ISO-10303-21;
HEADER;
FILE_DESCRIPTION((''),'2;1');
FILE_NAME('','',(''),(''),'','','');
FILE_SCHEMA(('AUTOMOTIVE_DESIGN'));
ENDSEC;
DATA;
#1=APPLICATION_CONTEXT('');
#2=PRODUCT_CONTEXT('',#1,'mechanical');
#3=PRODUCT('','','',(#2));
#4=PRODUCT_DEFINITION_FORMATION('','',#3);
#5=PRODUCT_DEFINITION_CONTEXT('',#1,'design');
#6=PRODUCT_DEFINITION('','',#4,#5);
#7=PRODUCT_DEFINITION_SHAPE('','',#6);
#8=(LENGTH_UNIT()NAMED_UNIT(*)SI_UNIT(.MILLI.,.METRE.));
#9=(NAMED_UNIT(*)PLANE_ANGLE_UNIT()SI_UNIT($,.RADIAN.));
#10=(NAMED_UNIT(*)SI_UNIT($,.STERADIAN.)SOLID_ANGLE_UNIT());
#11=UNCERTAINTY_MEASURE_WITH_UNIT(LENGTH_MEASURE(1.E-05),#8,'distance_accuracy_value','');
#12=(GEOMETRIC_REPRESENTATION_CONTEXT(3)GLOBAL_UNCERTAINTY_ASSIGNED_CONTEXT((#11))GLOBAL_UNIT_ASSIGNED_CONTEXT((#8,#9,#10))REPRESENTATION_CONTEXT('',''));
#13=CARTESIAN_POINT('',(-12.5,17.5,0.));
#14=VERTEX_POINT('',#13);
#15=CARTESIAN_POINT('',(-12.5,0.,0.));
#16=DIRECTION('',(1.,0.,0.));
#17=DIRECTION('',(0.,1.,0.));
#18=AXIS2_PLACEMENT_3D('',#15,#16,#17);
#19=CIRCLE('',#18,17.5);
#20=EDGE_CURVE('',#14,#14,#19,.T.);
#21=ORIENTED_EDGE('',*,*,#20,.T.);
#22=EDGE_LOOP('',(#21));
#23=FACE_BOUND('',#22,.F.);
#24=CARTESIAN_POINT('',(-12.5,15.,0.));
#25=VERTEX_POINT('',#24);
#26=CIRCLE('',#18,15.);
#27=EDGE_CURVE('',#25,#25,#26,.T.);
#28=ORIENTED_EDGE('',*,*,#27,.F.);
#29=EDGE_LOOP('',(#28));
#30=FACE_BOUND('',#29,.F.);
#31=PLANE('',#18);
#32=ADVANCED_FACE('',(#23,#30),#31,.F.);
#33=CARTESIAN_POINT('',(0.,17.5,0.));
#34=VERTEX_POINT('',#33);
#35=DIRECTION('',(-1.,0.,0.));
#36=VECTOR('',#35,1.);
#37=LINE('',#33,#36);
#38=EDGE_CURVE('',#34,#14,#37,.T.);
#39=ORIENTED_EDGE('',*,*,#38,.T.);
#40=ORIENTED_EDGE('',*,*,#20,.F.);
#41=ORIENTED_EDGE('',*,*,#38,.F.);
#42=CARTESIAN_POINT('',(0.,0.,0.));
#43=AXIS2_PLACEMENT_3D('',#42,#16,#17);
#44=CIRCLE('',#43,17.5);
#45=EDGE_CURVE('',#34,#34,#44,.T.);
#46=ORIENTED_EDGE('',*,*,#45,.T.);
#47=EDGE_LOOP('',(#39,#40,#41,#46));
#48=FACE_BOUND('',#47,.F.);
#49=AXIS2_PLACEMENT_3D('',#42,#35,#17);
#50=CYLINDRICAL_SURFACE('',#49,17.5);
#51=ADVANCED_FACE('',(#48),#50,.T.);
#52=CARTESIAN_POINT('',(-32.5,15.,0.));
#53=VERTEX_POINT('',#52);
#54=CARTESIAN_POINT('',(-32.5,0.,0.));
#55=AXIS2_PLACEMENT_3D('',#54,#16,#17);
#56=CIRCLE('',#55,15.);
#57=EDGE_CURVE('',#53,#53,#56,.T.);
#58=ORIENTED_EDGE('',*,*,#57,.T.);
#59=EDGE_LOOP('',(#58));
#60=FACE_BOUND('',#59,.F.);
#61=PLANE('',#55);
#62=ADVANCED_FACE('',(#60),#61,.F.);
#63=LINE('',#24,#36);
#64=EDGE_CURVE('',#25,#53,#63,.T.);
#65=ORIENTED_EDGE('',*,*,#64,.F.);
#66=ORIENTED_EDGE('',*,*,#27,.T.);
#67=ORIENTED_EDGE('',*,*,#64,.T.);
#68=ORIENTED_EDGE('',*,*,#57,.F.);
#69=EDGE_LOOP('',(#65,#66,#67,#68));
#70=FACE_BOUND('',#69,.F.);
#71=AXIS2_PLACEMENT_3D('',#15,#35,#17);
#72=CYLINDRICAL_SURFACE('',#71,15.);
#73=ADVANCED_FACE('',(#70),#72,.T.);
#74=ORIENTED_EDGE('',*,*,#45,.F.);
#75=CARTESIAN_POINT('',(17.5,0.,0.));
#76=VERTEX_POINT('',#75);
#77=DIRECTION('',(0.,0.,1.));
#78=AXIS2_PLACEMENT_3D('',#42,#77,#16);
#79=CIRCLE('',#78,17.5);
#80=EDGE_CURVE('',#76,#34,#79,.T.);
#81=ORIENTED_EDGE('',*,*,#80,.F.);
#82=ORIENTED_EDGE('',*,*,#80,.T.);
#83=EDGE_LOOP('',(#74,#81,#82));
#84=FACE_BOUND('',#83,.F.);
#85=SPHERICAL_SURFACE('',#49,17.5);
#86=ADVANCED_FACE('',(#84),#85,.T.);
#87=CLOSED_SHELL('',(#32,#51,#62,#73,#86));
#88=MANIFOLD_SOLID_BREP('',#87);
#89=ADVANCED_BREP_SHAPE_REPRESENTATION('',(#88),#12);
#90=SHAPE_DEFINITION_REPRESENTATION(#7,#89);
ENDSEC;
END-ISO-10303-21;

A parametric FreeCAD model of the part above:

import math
import FreeCAD as App
import Part
import Sketcher
from FreeCAD import Vector

doc = App.newDocument("Part")
body = doc.addObject("PartDesign::Body", "Body")

# Sketch on XY plane
sketch1 = doc.addObject("Sketcher::SketchObject", "Sketch")
body.addObject(sketch1)
sketch1.AttachmentSupport = (doc.XY_Plane, [""])
sketch1.MapMode = "FlatFace"
sketch1.addGeometry(Part.LineSegment(Vector(-32.5, 15, 0), Vector(-32.5, 0, 0)), False)
sketch1.addGeometry(Part.LineSegment(Vector(-32.5, 0, 0), Vector(17.5, 0, 0)), False)
sketch1.addGeometry(Part.ArcOfCircle(Part.Circle(Vector(0, 0, 0), Vector(0, 0, 1), 17.5), math.radians(0), math.radians(90)), False)
sketch1.addGeometry(Part.LineSegment(Vector(0, 17.5, 0), Vector(-12.5, 17.5, 0)), False)
sketch1.addGeometry(Part.LineSegment(Vector(-12.5, 17.5, 0), Vector(-12.5, 15, 0)), False)
sketch1.addGeometry(Part.LineSegment(Vector(-12.5, 15, 0), Vector(-32.5, 15, 0)), False)
sketch1.addConstraint(Sketcher.Constraint("Coincident", 0, 2, 1, 1))
sketch1.addConstraint(Sketcher.Constraint("Coincident", 1, 2, 2, 1))
sketch1.addConstraint(Sketcher.Constraint("Tangent", 2, 2, 3, 1))
sketch1.addConstraint(Sketcher.Constraint("Coincident", 3, 2, 4, 1))
sketch1.addConstraint(Sketcher.Constraint("Coincident", 4, 2, 5, 1))
sketch1.addConstraint(Sketcher.Constraint("Coincident", 5, 2, 0, 1))
sketch1.addConstraint(Sketcher.Constraint("Vertical", 0))
sketch1.addConstraint(Sketcher.Constraint("Horizontal", 1))
sketch1.addConstraint(Sketcher.Constraint("Horizontal", 3))
sketch1.addConstraint(Sketcher.Constraint("Vertical", 4))
sketch1.addConstraint(Sketcher.Constraint("Horizontal", 5))
sketch1.addConstraint(Sketcher.Constraint("Coincident", 2, 3, -1, 1))
sketch1.addConstraint(Sketcher.Constraint("PointOnObject", 0, 2, -1))
sketch1.addConstraint(Sketcher.Constraint("Radius", 2, 17.5))
sketch1.addConstraint(Sketcher.Constraint("DistanceX", 1, 1, 1, 2, 50.0))
sketch1.addConstraint(Sketcher.Constraint("DistanceX", 5, 2, 5, 1, 20.0))
sketch1.addConstraint(Sketcher.Constraint("DistanceY", 0, 2, 0, 1, 15.0))
revolution = doc.addObject("PartDesign::Revolution", "Revolution")
body.addObject(revolution)
revolution.Profile = sketch1
revolution.ReferenceAxis = (sketch1, ["H_Axis"])
revolution.Angle = 360

doc.recompute()
